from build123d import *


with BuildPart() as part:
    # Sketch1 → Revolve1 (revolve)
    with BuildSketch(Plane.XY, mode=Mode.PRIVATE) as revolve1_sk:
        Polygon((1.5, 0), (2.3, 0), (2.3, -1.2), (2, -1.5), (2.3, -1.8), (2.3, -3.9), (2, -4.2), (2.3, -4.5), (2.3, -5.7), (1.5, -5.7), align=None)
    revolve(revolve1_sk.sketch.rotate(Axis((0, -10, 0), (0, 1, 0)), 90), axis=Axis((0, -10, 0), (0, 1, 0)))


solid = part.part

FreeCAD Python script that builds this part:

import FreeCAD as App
import Part
import Sketcher

V = App.Vector


def add_polygon(sketch, points):
    """Adds a closed chain of lines whose ends are joined by coincident constraints."""
    first, n = sketch.GeometryCount, len(points)
    for a, b in zip(points, points[1:] + points[:1]):
        sketch.addGeometry(Part.LineSegment(App.Vector(*a, 0), App.Vector(*b, 0)), False)
    for i in range(n):
        sketch.addConstraint(Sketcher.Constraint("Coincident", first + i, 2, first + (i + 1) % n, 1))

doc = App.newDocument("Part")
body = doc.addObject("PartDesign::Body", "Body")

sketch1 = body.newObject("Sketcher::SketchObject", "Sketch")
sketch1.AttachmentSupport = (doc.getObject("XY_Plane"), [""])
sketch1.MapMode = "FlatFace"
add_polygon(sketch1, [(2.3, 0), (1.5, 0), (1.5, -5.7), (2.3, -5.7), (2.3, -4.5), (2, -4.2), (2.3, -3.9), (2.3, -1.8), (2, -1.5), (2.3, -1.2)])
sketch1.addConstraint(Sketcher.Constraint("Horizontal", 0))
sketch1.addConstraint(Sketcher.Constraint("Vertical", 1))
sketch1.addConstraint(Sketcher.Constraint("Horizontal", 2))
sketch1.addConstraint(Sketcher.Constraint("Vertical", 3))
sketch1.addConstraint(Sketcher.Constraint("Vertical", 6))
sketch1.addConstraint(Sketcher.Constraint("Vertical", 9))
sketch1.addConstraint(Sketcher.Constraint("PointOnObject", 0, 2, -1))
sketch1.addConstraint(Sketcher.Constraint("Perpendicular", 4, 5))
sketch1.addConstraint(Sketcher.Constraint("Perpendicular", 5, 7))
sketch1.addConstraint(Sketcher.Constraint("Perpendicular", 7, 8))
sketch1.addConstraint(Sketcher.Constraint("Vertical", 3, 2, 5, 2))
sketch1.addConstraint(Sketcher.Constraint("Vertical", 4, 2, 7, 2))
sketch1.addConstraint(Sketcher.Constraint("Vertical", 6, 2, 8, 2))
sketch1.addConstraint(Sketcher.Constraint("Equal", 3, 9))
sketch1.addConstraint(Sketcher.Constraint("Equal", 4, 5))
sketch1.addConstraint(Sketcher.Constraint("DistanceX", 0, 2, 0, 1, 0.8))
sketch1.addConstraint(Sketcher.Constraint("DistanceY", 1, 2, 1, 1, 5.7))
sketch1.addConstraint(Sketcher.Constraint("DistanceY", 3, 1, 3, 2, 1.2))
sketch1.addConstraint(Sketcher.Constraint("DistanceY", 6, 1, 6, 2, 2.1))
sketch1.addConstraint(Sketcher.Constraint("DistanceX", -1, 1, 4, 2, 2.0))
revolution = body.newObject("PartDesign::Revolution", "Revolution")
revolution.Profile = sketch1
revolution.ReferenceAxis = (sketch1, ["V_Axis"])
revolution.Angle = 360

doc.recompute()
